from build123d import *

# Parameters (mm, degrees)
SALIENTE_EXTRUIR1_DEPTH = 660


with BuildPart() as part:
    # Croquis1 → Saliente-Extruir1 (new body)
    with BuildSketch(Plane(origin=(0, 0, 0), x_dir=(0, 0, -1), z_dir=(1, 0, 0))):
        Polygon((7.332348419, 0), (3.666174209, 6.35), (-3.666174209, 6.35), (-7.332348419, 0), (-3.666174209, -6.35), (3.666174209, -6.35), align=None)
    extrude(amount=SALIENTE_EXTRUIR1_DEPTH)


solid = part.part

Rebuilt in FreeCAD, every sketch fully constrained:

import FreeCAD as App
import Part
import Sketcher

V = App.Vector
Q = App.Units.Quantity


def add_polygon(sketch, points):
    """Adds a closed chain of lines whose ends are joined by coincident constraints."""
    first, n = sketch.GeometryCount, len(points)
    for a, b in zip(points, points[1:] + points[:1]):
        sketch.addGeometry(Part.LineSegment(App.Vector(*a, 0), App.Vector(*b, 0)), False)
    for i in range(n):
        sketch.addConstraint(Sketcher.Constraint("Coincident", first + i, 2, first + (i + 1) % n, 1))

doc = App.newDocument("Part")
body = doc.addObject("PartDesign::Body", "Body")

# Sketch on YZ plane
sketch1 = body.newObject("Sketcher::SketchObject", "Sketch")
sketch1.AttachmentSupport = (doc.getObject("YZ_Plane"), [""])
sketch1.MapMode = "FlatFace"
add_polygon(sketch1, [(0, -7), (6, -4), (6, 4), (0, 7), (-6, 4), (-6, -4)])  # lines 0-5
sketch1.addConstraint([
    Sketcher.Constraint("Vertical", 1),
    Sketcher.Constraint("Vertical", 4),
    Sketcher.Constraint("Symmetric", 0, 2, 3, 2, -1, 1),
    Sketcher.Constraint("Symmetric", 2, 2, 5, 2, -1, 1),
    Sketcher.Constraint("PointOnObject", 2, 2, -2),
    Sketcher.Constraint("Parallel", 2, 5),
    Sketcher.Constraint("Horizontal", 1, 2, 3, 2),
    Sketcher.Constraint("Angle", 0, Q("30 deg")),
    Sketcher.Constraint("DistanceX", 3, 2, 1, 2, Q("12.7 mm")),
    Sketcher.Constraint("DistanceY", 1, 1, 1, 2, Q("7.332348 mm")),
])
pad1 = body.newObject("PartDesign::Pad", "Pad")
pad1.Profile = sketch1
pad1.Length = 660

doc.recompute()
